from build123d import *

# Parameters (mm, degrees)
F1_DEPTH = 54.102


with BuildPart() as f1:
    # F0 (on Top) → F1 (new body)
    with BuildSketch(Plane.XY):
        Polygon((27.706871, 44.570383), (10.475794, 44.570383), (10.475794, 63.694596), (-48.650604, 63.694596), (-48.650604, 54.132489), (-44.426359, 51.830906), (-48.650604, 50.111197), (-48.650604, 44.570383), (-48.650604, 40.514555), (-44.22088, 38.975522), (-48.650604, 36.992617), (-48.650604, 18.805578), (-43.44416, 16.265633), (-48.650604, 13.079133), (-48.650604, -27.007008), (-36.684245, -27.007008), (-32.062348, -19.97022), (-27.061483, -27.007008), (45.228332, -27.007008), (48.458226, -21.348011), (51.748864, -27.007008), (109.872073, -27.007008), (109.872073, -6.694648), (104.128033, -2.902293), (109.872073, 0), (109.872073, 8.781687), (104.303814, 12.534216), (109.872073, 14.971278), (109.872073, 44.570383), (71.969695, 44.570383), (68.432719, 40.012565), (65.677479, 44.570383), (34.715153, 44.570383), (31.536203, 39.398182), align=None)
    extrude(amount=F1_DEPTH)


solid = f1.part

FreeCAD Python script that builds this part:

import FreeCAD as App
import Part
import Sketcher
Q = App.Units.Quantity


def add_polygon(sketch, points):
    """Adds a closed chain of lines whose ends are joined by coincident constraints."""
    first, n = sketch.GeometryCount, len(points)
    for a, b in zip(points, points[1:] + points[:1]):
        sketch.addGeometry(Part.LineSegment(App.Vector(*a, 0), App.Vector(*b, 0)), False)
    for i in range(n):
        sketch.addConstraint(Sketcher.Constraint("Coincident", first + i, 2, first + (i + 1) % n, 1))

doc = App.newDocument("Part")
body = doc.addObject("PartDesign::Body", "Body")

# Sketch on XY plane
sketch1 = body.newObject("Sketcher::SketchObject", "Sketch")
sketch1.AttachmentSupport = (doc.getObject("XY_Plane"), [""])
sketch1.MapMode = "FlatFace"
add_polygon(sketch1, [(27.7, 44.6), (10.5, 44.6), (10.5, 63.7), (-48.7, 63.7), (-48.7, 54.1), (-44.4, 51.8), (-48.7, 50.1), (-48.7, 40.5), (-44.2, 39), (-48.7, 37), (-48.7, 18.8), (-43.4, 16.3), (-48.7, 13.1), (-48.7, -27), (-36.7, -27), (-32.1, -20), (-27.1, -27), (45.2, -27), (48.5, -21.3), (51.7, -27), (109.9, -27), (109.9, -6.7), (104.1, -2.9), (109.9, 0), (109.9, 8.8), (104.3, 12.5), (109.9, 15), (109.9, 44.6), (72, 44.6), (68.4, 40), (65.7, 44.6), (34.7, 44.6), (31.5, 39.4)])  # lines 0-32
sketch1.addConstraint(Sketcher.Constraint("Horizontal", 0))
sketch1.addConstraint(Sketcher.Constraint("Vertical", 1))
sketch1.addConstraint(Sketcher.Constraint("Horizontal", 2))
sketch1.addConstraint(Sketcher.Constraint("Vertical", 3))
sketch1.addConstraint(Sketcher.Constraint("Vertical", 6))
sketch1.addConstraint(Sketcher.Constraint("Vertical", 9))
sketch1.addConstraint(Sketcher.Constraint("Vertical", 12))
sketch1.addConstraint(Sketcher.Constraint("Horizontal", 13))
sketch1.addConstraint(Sketcher.Constraint("Horizontal", 16))
sketch1.addConstraint(Sketcher.Constraint("Horizontal", 19))
sketch1.addConstraint(Sketcher.Constraint("Vertical", 20))
sketch1.addConstraint(Sketcher.Constraint("Vertical", 23))
sketch1.addConstraint(Sketcher.Constraint("Vertical", 26))
sketch1.addConstraint(Sketcher.Constraint("Horizontal", 27))
sketch1.addConstraint(Sketcher.Constraint("Horizontal", 30))
sketch1.addConstraint(Sketcher.Constraint("PointOnObject", 22, 2, -1))
sketch1.addConstraint(Sketcher.Constraint("Horizontal", 13, 2, 15, 2))
sketch1.addConstraint(Sketcher.Constraint("Horizontal", 16, 2, 18, 2))
sketch1.addConstraint(Sketcher.Constraint("Horizontal", 0, 2, 26, 2))
sketch1.addConstraint(Sketcher.Constraint("Horizontal", 27, 2, 29, 2))
sketch1.addConstraint(Sketcher.Constraint("Vertical", 3, 2, 5, 2))
sketch1.addConstraint(Sketcher.Constraint("Vertical", 6, 2, 8, 2))
sketch1.addConstraint(Sketcher.Constraint("Vertical", 9, 2, 11, 2))
sketch1.addConstraint(Sketcher.Constraint("Vertical", 20, 2, 22, 2))
sketch1.addConstraint(Sketcher.Constraint("Vertical", 23, 2, 25, 2))
sketch1.addConstraint(Sketcher.Constraint("Distance", 25, Q("0.2393001 in")))
sketch1.addConstraint(Sketcher.Constraint("DistanceX", 2, 2, 2, 1, Q("59.126398 mm")))
sketch1.addConstraint(Sketcher.Constraint("DistanceX", 10, 2, -1, 1, Q("1.7104 in")))
sketch1.addConstraint(Sketcher.Constraint("DistanceY", 6, 2, 2, 2, Q("0.9126 in")))
sketch1.addConstraint(Sketcher.Constraint("DistanceX", 13, 1, 13, 2, Q("11.966359 mm")))
sketch1.addConstraint(Sketcher.Constraint("DistanceX", 19, 1, 19, 2, Q("58.123209 mm")))
sketch1.addConstraint(Sketcher.Constraint("DistanceY", 6, 2, 6, 1, Q("9.596642 mm")))
sketch1.addConstraint(Sketcher.Constraint("DistanceY", 9, 2, 9, 1, Q("18.187039 mm")))
sketch1.addConstraint(Sketcher.Constraint("DistanceY", 12, 2, 12, 1, Q("40.086141 mm")))
sketch1.addConstraint(Sketcher.Constraint("DistanceY", 20, 1, 20, 2, Q("20.31236 mm")))
sketch1.addConstraint(Sketcher.Constraint("DistanceY", 11, 2, 10, 2, Q("3.1865 mm")))
sketch1.addConstraint(Sketcher.Constraint("DistanceY", 14, 2, 9, 2, Q("38.775798 mm")))
sketch1.addConstraint(Sketcher.Constraint("DistanceX", 16, 2, 21, 2, Q("58.899701 mm")))
sketch1.addConstraint(Sketcher.Constraint("DistanceY", 31, 2, 30, 2, Q("5.172201 mm")))
sketch1.addConstraint(Sketcher.Constraint("Distance", 10, Q("5.792959 mm")))
sketch1.addConstraint(Sketcher.Constraint("Distance", 15, Q("8.632788 mm")))
sketch1.addConstraint(Sketcher.Constraint("Distance", 21, Q("6.883019 mm")))
sketch1.addConstraint(Sketcher.Constraint("Distance", 28, Q("5.76922 mm")))
sketch1.addConstraint(Sketcher.Constraint("Distance", 31, Q("6.071028 mm")))
sketch1.addConstraint(Sketcher.Constraint("DistanceX", 0, 2, 0, 1, Q("17.231077 mm")))
sketch1.addConstraint(Sketcher.Constraint("DistanceX", 16, 1, 16, 2, Q("72.289815 mm")))
sketch1.addConstraint(Sketcher.Constraint("DistanceX", 27, 2, 27, 1, Q("37.902378 mm")))
sketch1.addConstraint(Sketcher.Constraint("DistanceX", 30, 2, 30, 1, Q("30.962326 mm")))
sketch1.addConstraint(Sketcher.Constraint("DistanceY", 1, 1, 1, 2, Q("19.124213 mm")))
sketch1.addConstraint(Sketcher.Constraint("DistanceY", 3, 2, 3, 1, Q("9.562107 mm")))
sketch1.addConstraint(Sketcher.Constraint("DistanceY", 23, 1, 23, 2, Q("8.781687 mm")))
sketch1.addConstraint(Sketcher.Constraint("DistanceY", 26, 1, 26, 2, Q("29.599105 mm")))
sketch1.addConstraint(Sketcher.Constraint("DistanceY", -1, 1, 3, 2, Q("54.132489 mm")))
sketch1.addConstraint(Sketcher.Constraint("DistanceX", 4, 2, -1, 1, Q("44.426359 mm")))
sketch1.addConstraint(Sketcher.Constraint("DistanceX", 7, 2, -1, 1, Q("44.22088 mm")))
sketch1.addConstraint(Sketcher.Constraint("DistanceY", -1, 1, 7, 2, Q("38.975522 mm")))
sketch1.addConstraint(Sketcher.Constraint("DistanceY", -1, 1, 9, 2, Q("18.805578 mm")))
sketch1.addConstraint(Sketcher.Constraint("DistanceY", 17, 2, -1, 1, Q("21.348011 mm")))
sketch1.addConstraint(Sketcher.Constraint("DistanceX", -1, 1, 28, 2, Q("68.432719 mm")))
sketch1.addConstraint(Sketcher.Constraint("DistanceX", -1, 1, 29, 2, Q("65.677479 mm")))
sketch1.addConstraint(Sketcher.Constraint("DistanceX", -1, 1, 32, 2, Q("27.706871 mm")))
sketch1.addConstraint(Sketcher.Constraint("DistanceY", 4, 2, 2, 2, Q("11.86369 mm")))
sketch1.addConstraint(Sketcher.Constraint("DistanceX", 10, 2, 14, 2, Q("11.381812 mm")))
sketch1.addConstraint(Sketcher.Constraint("DistanceX", 15, 2, 17, 2, Q("75.519709 mm")))
sketch1.addConstraint(Sketcher.Constraint("DistanceX", 16, 2, 18, 2, Q("6.520532 mm")))
sketch1.addConstraint(Sketcher.Constraint("DistanceX", 24, 2, 23, 2, Q("5.568259 mm")))
pad1 = body.newObject("PartDesign::Pad", "Pad")
pad1.Profile = sketch1
pad1.Length = Q("2.13 in")

doc.recompute()
